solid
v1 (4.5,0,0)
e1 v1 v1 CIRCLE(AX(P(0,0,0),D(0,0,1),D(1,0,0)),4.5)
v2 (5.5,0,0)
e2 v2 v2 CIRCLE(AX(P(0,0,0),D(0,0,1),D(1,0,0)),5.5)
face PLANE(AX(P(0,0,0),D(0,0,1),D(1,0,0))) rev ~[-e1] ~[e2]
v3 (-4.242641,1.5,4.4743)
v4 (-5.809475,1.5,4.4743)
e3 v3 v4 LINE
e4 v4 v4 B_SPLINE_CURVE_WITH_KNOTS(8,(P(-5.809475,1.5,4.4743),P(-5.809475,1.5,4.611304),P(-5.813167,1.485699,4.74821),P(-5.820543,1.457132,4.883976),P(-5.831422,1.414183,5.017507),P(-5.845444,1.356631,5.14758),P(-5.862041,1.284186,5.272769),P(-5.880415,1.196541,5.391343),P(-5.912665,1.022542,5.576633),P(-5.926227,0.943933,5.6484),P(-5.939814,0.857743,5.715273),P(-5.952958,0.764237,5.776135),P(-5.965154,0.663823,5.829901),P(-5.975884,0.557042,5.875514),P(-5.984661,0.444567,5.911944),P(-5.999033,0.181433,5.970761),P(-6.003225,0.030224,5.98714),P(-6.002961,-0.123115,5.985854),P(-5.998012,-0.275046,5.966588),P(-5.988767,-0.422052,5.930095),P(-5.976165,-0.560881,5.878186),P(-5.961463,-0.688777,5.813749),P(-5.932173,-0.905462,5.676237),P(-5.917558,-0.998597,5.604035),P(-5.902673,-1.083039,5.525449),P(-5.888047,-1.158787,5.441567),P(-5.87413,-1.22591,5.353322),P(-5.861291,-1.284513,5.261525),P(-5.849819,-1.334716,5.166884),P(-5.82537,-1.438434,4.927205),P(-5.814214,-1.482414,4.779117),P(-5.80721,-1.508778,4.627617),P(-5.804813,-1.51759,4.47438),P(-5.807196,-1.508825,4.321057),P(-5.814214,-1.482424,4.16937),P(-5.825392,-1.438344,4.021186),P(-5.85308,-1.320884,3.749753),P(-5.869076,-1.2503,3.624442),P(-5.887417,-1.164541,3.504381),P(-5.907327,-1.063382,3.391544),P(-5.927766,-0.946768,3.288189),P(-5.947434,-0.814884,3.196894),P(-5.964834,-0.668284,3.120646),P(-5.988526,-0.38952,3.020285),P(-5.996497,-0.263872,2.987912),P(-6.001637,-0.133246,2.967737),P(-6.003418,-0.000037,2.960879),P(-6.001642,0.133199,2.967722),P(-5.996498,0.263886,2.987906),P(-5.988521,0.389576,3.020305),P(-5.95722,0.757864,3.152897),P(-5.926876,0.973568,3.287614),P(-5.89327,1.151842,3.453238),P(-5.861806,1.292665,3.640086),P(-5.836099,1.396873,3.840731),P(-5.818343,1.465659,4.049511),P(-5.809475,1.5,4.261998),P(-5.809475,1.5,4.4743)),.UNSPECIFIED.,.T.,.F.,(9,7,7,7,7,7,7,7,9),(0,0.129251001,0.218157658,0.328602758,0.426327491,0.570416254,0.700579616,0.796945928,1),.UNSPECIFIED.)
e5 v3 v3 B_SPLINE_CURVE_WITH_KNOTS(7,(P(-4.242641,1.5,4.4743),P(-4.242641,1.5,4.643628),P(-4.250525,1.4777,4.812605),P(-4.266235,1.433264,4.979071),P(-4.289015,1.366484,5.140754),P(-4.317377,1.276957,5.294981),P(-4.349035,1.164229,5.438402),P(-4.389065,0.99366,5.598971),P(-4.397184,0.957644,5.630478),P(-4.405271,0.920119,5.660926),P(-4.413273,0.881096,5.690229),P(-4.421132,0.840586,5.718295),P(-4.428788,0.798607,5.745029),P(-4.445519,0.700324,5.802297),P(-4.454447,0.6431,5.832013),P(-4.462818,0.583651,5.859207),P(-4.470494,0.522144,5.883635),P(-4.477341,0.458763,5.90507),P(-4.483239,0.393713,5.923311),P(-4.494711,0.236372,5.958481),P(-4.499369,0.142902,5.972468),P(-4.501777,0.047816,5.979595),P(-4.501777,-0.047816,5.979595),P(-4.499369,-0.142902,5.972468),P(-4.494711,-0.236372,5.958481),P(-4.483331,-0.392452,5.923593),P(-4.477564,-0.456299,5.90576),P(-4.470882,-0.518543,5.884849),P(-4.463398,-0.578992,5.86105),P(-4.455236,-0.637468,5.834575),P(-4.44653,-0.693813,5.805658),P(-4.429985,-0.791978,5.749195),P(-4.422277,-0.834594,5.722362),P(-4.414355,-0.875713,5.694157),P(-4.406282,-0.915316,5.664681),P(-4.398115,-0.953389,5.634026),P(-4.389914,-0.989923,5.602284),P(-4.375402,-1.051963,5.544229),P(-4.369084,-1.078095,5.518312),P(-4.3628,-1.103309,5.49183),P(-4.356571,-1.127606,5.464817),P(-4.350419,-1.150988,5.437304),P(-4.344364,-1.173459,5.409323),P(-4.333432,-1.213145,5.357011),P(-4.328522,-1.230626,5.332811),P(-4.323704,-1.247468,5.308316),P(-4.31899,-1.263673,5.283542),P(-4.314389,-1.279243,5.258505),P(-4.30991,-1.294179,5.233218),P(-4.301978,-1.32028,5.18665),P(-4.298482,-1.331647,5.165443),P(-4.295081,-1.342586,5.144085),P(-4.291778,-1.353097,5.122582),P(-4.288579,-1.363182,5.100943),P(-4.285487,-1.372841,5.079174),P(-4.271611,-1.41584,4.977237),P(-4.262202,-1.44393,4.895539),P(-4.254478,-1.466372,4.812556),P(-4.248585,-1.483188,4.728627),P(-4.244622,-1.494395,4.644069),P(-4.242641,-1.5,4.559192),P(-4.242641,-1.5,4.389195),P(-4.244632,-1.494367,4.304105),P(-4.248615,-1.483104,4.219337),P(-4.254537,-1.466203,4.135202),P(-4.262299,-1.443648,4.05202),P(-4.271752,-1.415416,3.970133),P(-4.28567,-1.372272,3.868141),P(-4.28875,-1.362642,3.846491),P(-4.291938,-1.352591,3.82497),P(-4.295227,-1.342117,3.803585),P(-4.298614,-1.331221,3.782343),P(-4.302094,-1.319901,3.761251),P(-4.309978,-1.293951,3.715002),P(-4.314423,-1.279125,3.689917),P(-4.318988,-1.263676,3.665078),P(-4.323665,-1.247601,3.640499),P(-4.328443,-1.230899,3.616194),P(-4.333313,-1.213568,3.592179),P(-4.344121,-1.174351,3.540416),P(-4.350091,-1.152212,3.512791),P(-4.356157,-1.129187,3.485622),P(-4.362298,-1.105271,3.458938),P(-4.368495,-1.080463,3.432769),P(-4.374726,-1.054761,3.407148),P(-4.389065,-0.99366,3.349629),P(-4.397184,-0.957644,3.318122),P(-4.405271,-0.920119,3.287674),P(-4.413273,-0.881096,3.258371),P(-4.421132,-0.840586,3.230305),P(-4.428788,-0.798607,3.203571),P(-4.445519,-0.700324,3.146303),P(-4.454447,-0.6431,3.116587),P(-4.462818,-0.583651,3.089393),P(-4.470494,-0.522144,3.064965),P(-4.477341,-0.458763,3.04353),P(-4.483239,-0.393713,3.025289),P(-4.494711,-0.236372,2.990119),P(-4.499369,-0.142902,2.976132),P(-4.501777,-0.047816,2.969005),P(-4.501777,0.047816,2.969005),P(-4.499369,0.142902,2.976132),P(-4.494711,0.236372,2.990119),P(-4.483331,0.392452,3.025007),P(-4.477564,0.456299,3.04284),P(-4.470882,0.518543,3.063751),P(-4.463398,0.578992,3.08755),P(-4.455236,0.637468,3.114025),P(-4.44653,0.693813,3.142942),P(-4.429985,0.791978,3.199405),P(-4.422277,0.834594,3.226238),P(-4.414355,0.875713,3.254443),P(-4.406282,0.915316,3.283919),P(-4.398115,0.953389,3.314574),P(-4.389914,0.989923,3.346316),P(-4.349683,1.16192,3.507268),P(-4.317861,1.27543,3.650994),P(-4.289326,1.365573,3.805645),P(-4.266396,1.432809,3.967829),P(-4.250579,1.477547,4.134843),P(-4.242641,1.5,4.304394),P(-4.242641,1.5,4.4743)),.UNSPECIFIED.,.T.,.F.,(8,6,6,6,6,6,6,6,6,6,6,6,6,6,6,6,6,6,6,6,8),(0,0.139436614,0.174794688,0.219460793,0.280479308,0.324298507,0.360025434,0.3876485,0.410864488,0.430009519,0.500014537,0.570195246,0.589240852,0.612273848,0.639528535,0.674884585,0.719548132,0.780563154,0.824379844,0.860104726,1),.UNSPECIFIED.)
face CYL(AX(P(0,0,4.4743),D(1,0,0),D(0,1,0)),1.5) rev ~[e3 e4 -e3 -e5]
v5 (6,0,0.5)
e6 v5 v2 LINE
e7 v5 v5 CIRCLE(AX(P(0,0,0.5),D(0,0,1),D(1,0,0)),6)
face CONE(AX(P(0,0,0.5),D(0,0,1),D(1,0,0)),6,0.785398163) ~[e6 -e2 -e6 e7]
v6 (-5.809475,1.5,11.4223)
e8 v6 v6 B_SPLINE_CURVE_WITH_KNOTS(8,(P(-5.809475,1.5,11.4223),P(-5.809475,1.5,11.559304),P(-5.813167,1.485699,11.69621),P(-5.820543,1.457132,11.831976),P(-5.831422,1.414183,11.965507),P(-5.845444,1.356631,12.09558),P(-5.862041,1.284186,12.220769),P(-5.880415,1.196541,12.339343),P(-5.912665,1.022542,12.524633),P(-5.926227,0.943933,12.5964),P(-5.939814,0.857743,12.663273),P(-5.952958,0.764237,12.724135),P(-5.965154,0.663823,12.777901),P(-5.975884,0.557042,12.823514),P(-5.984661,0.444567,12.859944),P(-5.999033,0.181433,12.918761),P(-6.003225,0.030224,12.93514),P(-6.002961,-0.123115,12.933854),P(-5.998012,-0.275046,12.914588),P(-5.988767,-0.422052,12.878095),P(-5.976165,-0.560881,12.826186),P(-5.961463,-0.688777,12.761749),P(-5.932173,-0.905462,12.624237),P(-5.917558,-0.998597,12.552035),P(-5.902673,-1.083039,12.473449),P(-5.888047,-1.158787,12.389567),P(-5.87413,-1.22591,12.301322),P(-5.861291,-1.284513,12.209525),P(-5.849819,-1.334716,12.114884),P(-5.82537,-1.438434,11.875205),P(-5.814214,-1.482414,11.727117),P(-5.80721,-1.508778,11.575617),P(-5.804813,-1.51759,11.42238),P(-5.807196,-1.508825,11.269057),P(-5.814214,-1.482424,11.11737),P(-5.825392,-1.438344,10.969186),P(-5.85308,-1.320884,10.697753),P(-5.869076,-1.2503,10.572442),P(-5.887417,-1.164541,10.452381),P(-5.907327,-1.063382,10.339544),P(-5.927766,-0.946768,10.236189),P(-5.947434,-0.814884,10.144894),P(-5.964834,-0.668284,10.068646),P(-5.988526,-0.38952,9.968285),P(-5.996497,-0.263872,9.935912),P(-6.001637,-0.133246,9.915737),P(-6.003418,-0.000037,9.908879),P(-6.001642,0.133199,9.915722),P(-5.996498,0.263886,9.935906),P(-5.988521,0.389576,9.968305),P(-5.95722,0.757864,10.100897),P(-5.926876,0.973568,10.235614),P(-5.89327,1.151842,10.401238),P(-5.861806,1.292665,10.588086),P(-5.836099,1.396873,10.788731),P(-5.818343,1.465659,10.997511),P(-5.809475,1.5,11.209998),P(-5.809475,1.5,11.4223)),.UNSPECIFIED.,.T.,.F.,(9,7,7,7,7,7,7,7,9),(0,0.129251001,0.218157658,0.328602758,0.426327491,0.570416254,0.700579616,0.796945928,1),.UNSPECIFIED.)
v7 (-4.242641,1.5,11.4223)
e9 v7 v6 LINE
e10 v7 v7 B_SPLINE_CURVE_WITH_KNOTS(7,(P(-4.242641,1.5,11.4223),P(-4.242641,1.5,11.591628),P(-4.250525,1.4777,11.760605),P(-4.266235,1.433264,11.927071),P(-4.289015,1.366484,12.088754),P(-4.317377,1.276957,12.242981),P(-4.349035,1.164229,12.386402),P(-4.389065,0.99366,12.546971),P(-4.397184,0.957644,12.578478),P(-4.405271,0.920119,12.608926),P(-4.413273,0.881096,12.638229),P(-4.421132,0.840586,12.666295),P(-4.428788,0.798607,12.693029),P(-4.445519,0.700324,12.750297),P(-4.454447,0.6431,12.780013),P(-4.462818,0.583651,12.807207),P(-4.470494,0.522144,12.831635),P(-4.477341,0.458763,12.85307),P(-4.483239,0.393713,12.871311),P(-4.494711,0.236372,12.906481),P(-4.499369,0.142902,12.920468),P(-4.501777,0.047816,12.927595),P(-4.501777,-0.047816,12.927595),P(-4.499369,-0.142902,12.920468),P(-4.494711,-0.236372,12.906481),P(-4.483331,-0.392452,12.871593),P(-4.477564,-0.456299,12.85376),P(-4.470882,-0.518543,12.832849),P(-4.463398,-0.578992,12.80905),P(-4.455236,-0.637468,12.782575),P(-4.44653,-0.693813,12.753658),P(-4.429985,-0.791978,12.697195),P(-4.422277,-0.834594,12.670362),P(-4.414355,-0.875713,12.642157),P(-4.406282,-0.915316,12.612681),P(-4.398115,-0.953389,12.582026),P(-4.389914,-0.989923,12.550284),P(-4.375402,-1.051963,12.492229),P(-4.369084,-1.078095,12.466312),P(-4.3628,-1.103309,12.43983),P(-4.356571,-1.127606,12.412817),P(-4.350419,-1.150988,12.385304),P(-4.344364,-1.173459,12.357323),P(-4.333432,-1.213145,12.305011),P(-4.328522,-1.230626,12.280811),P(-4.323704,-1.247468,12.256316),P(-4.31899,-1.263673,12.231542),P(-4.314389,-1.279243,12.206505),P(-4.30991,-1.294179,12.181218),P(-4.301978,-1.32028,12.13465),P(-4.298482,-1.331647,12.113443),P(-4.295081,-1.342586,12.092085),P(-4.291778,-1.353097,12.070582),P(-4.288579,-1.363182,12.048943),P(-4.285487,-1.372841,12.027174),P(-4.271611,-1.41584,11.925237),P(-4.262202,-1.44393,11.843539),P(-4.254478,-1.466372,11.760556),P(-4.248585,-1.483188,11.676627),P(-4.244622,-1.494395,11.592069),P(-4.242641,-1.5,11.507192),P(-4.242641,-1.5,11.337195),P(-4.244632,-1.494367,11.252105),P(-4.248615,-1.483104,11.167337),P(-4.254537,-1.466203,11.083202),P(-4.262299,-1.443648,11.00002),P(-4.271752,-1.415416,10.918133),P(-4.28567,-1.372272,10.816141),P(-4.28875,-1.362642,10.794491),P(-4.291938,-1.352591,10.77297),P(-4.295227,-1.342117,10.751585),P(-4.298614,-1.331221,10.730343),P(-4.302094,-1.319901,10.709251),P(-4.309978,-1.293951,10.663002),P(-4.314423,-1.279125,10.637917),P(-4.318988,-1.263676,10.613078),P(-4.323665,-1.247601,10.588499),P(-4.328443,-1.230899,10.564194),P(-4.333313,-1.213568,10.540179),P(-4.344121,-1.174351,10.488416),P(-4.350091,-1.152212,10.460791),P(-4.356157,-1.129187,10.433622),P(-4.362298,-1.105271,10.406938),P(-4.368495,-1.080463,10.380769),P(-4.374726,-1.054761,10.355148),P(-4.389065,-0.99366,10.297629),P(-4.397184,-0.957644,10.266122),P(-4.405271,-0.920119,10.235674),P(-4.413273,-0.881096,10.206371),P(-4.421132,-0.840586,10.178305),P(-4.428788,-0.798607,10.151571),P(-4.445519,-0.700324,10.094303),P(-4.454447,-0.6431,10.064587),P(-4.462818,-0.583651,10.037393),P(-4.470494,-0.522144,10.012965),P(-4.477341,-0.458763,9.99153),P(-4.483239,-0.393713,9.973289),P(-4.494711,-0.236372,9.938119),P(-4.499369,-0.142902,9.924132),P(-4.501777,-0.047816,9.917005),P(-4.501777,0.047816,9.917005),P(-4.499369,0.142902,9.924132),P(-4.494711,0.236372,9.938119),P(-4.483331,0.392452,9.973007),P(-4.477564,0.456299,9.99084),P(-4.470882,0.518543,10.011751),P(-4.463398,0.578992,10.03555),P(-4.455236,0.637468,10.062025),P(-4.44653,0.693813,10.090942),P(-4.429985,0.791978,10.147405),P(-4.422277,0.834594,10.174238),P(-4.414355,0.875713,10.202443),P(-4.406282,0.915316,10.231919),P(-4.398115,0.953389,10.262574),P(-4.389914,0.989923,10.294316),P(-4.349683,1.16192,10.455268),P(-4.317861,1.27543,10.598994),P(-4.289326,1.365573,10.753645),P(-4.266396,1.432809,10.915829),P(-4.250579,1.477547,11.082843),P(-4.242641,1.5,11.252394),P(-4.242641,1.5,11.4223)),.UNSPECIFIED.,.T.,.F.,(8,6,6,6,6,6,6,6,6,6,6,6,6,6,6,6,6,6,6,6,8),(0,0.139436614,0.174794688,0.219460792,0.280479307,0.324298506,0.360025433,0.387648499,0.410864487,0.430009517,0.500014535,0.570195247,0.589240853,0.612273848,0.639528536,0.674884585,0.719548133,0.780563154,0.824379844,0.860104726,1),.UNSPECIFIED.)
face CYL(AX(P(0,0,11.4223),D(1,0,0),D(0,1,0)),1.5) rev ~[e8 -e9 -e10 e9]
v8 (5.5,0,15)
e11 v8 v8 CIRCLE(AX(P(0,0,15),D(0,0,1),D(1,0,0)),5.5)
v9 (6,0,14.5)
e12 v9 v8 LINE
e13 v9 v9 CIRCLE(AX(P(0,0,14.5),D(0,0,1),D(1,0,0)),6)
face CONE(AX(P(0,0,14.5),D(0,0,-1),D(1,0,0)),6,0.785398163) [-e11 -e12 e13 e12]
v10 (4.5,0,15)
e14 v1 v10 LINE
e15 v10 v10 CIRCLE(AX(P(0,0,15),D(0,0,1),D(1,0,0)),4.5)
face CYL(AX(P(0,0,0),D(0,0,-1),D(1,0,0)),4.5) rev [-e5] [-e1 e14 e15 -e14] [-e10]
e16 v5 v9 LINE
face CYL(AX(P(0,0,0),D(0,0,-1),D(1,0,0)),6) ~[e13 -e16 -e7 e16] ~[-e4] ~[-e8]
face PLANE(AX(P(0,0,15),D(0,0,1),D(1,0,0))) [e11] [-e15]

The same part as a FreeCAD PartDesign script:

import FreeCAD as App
import Part
import Sketcher
from FreeCAD import Vector


def edges_at(feature, points):
    """Names of the edges that pass closest to the given points."""
    edges = feature.Shape.Edges
    near = lambda p: min(range(len(edges)), key=lambda i: edges[i].distToShape(Part.Vertex(*p))[0])
    return sorted({f"Edge{near(p) + 1}" for p in points})

doc = App.newDocument("Part")
body = doc.addObject("PartDesign::Body", "Body")

sketch1 = doc.addObject("Sketcher::SketchObject", "Sketch")
body.addObject(sketch1)
sketch1.AttachmentSupport = (doc.XY_Plane, [""])
sketch1.MapMode = "FlatFace"
sketch1.addGeometry(Part.Circle(Vector(0, 0, 0), Vector(0, 0, 1), 6), False)
sketch1.addGeometry(Part.Circle(Vector(0, 0, 0), Vector(0, 0, 1), 4.5), False)
sketch1.addConstraint(Sketcher.Constraint("Coincident", 0, 3, -1, 1))
sketch1.addConstraint(Sketcher.Constraint("Coincident", 1, 3, -1, 1))
sketch1.addConstraint(Sketcher.Constraint("Diameter", 0, 12.0))
sketch1.addConstraint(Sketcher.Constraint("Diameter", 1, 9.0))
pad1 = doc.addObject("PartDesign::Pad", "Pad")
body.addObject(pad1)
pad1.Profile = sketch1
pad1.Length = 15
doc.recompute()

chamfer = doc.addObject("PartDesign::Chamfer", "Chamfer")
body.addObject(chamfer)
chamfer.Base = (pad1, edges_at(pad1, [(-6, 0, 15), (-6, 0, 0)]))
chamfer.Size = 0.5

sketch2 = doc.addObject("Sketcher::SketchObject", "Sketch001")
body.addObject(sketch2)
sketch2.AttachmentSupport = (doc.YZ_Plane, [""])
sketch2.MapMode = "FlatFace"
sketch2.addGeometry(Part.Circle(Vector(0, 11.4, 0), Vector(0, 0, 1), 1.5), False)
sketch2.addGeometry(Part.Circle(Vector(0, 4.5, 0), Vector(0, 0, 1), 1.5), False)
sketch2.addConstraint(Sketcher.Constraint("Equal", 0, 1))
sketch2.addConstraint(Sketcher.Constraint("PointOnObject", 0, 3, -2))
sketch2.addConstraint(Sketcher.Constraint("PointOnObject", 1, 3, -2))
sketch2.addConstraint(Sketcher.Constraint("Diameter", 0, 3.0))
sketch2.addConstraint(Sketcher.Constraint("DistanceY", 1, 3, 0, 3, 6.948))
sketch2.addConstraint(Sketcher.Constraint("DistanceY", -1, 1, 0, 3, 11.4223))
pocket1 = doc.addObject("PartDesign::Pocket", "Pocket")
body.addObject(pocket1)
pocket1.Profile = sketch2
pocket1.Length = 10

doc.recompute()
